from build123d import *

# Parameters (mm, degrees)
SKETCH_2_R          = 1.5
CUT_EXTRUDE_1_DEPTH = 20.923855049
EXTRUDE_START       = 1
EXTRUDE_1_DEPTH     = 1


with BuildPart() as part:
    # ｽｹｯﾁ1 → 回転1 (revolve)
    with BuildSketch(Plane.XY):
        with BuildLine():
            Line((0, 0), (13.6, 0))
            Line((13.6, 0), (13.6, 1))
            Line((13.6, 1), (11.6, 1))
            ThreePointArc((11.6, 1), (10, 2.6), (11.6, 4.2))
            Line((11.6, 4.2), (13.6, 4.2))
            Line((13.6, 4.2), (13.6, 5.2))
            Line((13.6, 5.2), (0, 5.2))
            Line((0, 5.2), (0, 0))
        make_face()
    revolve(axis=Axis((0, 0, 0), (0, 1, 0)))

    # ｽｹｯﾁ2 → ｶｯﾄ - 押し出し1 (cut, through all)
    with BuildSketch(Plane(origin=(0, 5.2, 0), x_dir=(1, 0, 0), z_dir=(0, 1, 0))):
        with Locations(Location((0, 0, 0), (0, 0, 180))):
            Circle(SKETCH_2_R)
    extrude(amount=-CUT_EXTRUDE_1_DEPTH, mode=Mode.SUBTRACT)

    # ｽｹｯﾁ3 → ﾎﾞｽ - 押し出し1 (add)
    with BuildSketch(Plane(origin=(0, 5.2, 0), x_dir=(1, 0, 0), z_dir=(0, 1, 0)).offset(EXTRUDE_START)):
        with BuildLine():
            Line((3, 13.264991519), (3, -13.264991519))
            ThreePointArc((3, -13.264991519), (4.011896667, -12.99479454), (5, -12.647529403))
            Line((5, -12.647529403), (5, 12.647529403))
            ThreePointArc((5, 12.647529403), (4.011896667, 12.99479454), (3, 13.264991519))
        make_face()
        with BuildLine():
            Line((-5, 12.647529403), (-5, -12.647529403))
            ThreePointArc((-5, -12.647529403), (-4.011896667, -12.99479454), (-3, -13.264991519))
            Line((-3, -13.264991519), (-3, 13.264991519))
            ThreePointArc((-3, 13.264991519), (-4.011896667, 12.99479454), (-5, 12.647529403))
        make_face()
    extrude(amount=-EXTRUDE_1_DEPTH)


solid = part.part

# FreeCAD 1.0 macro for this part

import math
import FreeCAD as App
import Part
import Sketcher
from FreeCAD import Vector

doc = App.newDocument("Part")
body = doc.addObject("PartDesign::Body", "Body")

# Sketch on XY plane
sketch1 = body.newObject("Sketcher::SketchObject", "Sketch")
sketch1.AttachmentSupport = (doc.getObject("XY_Plane"), [""])
sketch1.MapMode = "FlatFace"
sketch1.addGeometry(Part.LineSegment(Vector(0, 0, 0), Vector(13.6, 0, 0)), False)
sketch1.addGeometry(Part.LineSegment(Vector(13.6, 0, 0), Vector(13.6, 1, 0)), False)
sketch1.addGeometry(Part.LineSegment(Vector(13.6, 1, 0), Vector(11.6, 1, 0)), False)
sketch1.addGeometry(Part.ArcOfCircle(Part.Circle(Vector(11.6, 2.6, 0), Vector(0, 0, 1), 1.6), math.radians(90), math.radians(270)), False)
sketch1.addGeometry(Part.LineSegment(Vector(11.6, 4.2, 0), Vector(13.6, 4.2, 0)), False)
sketch1.addGeometry(Part.LineSegment(Vector(13.6, 4.2, 0), Vector(13.6, 5.2, 0)), False)
sketch1.addGeometry(Part.LineSegment(Vector(13.6, 5.2, 0), Vector(0, 5.2, 0)), False)
sketch1.addGeometry(Part.LineSegment(Vector(0, 5.2, 0), Vector(0, 0, 0)), False)
sketch1.addConstraint(Sketcher.Constraint("Coincident", 0, 2, 1, 1))
sketch1.addConstraint(Sketcher.Constraint("Coincident", 1, 2, 2, 1))
sketch1.addConstraint(Sketcher.Constraint("Tangent", 2, 2, 3, 2))
sketch1.addConstraint(Sketcher.Constraint("Tangent", 3, 1, 4, 1))
sketch1.addConstraint(Sketcher.Constraint("Coincident", 4, 2, 5, 1))
sketch1.addConstraint(Sketcher.Constraint("Coincident", 5, 2, 6, 1))
sketch1.addConstraint(Sketcher.Constraint("Coincident", 6, 2, 7, 1))
sketch1.addConstraint(Sketcher.Constraint("Coincident", 7, 2, 0, 1))
sketch1.addConstraint(Sketcher.Constraint("Horizontal", 0))
sketch1.addConstraint(Sketcher.Constraint("Vertical", 1))
sketch1.addConstraint(Sketcher.Constraint("Horizontal", 2))
sketch1.addConstraint(Sketcher.Constraint("Horizontal", 4))
sketch1.addConstraint(Sketcher.Constraint("Vertical", 5))
sketch1.addConstraint(Sketcher.Constraint("Horizontal", 6))
sketch1.addConstraint(Sketcher.Constraint("Vertical", 7))
sketch1.addConstraint(Sketcher.Constraint("Coincident", 7, 2, -1, 1))
sketch1.addConstraint(Sketcher.Constraint("Vertical", 1, 2, 4, 2))
sketch1.addConstraint(Sketcher.Constraint("Equal", 1, 5))
sketch1.addConstraint(Sketcher.Constraint("Radius", 3, 1.6))
sketch1.addConstraint(Sketcher.Constraint("DistanceX", 2, 2, 2, 1, 2.0))
sketch1.addConstraint(Sketcher.Constraint("DistanceY", 1, 1, 1, 2, 1.0))
sketch1.addConstraint(Sketcher.Constraint("DistanceX", 0, 1, 0, 2, 13.6))
revolution = body.newObject("PartDesign::Revolution", "Revolution")
revolution.Profile = sketch1
revolution.ReferenceAxis = (sketch1, ["V_Axis"])
revolution.Angle = 360

# Sketch on XZ plane
sketch2 = body.newObject("Sketcher::SketchObject", "Sketch001")
sketch2.AttachmentSupport = (doc.getObject("XZ_Plane"), [""])
sketch2.MapMode = "FlatFace"
sketch2.AttachmentOffset = App.Placement(Vector(0, 0, -5.2), App.Rotation())
sketch2.addGeometry(Part.Circle(Vector(0, 0, 0), Vector(0, 0, 1), 1.5), False)
sketch2.addConstraint(Sketcher.Constraint("Coincident", 0, 3, -1, 1))
sketch2.addConstraint(Sketcher.Constraint("Diameter", 0, 3.0))
pocket1 = body.newObject("PartDesign::Pocket", "Pocket")
pocket1.Profile = sketch2
pocket1.Type = "ThroughAll"
pocket1.Reversed = True

# Sketch on XZ plane
sketch3 = body.newObject("Sketcher::SketchObject", "Sketch002")
sketch3.AttachmentSupport = (doc.getObject("XZ_Plane"), [""])
sketch3.MapMode = "FlatFace"
sketch3.AttachmentOffset = App.Placement(Vector(0, 0, -6.2), App.Rotation())
sketch3.addGeometry(Part.LineSegment(Vector(3, -13.264992, 0), Vector(3, 13.264992, 0)), False)
sketch3.addGeometry(Part.ArcOfCircle(Part.Circle(Vector(0, 0, 0), Vector(0, 0, 1), 13.6), math.radians(68.429422), math.radians(77.256415)), False)
sketch3.addGeometry(Part.LineSegment(Vector(5, 12.647529, 0), Vector(5, -12.647529, 0)), False)
sketch3.addGeometry(Part.ArcOfCircle(Part.Circle(Vector(0, 0, 0), Vector(0, 0, 1), 13.6), math.radians(-77.256415), math.radians(-68.429422)), False)
sketch3.addGeometry(Part.LineSegment(Vector(-5, -12.647529, 0), Vector(-5, 12.647529, 0)), False)
sketch3.addGeometry(Part.ArcOfCircle(Part.Circle(Vector(0, 0, 0), Vector(0, 0, 1), 13.6), math.radians(102.743585), math.radians(111.570578)), False)
sketch3.addGeometry(Part.LineSegment(Vector(-3, 13.264992, 0), Vector(-3, -13.264992, 0)), False)
sketch3.addGeometry(Part.ArcOfCircle(Part.Circle(Vector(0, 0, 0), Vector(0, 0, 1), 13.6), math.radians(-111.570578), math.radians(-102.743585)), False)
sketch3.addConstraint(Sketcher.Constraint("Coincident", 0, 2, 1, 2))
sketch3.addConstraint(Sketcher.Constraint("Coincident", 1, 1, 2, 1))
sketch3.addConstraint(Sketcher.Constraint("Coincident", 2, 2, 3, 2))
sketch3.addConstraint(Sketcher.Constraint("Coincident", 3, 1, 0, 1))
sketch3.addConstraint(Sketcher.Constraint("Coincident", 4, 2, 5, 2))
sketch3.addConstraint(Sketcher.Constraint("Coincident", 5, 1, 6, 1))
sketch3.addConstraint(Sketcher.Constraint("Coincident", 6, 2, 7, 2))
sketch3.addConstraint(Sketcher.Constraint("Coincident", 7, 1, 4, 1))
sketch3.addConstraint(Sketcher.Constraint("Vertical", 0))
sketch3.addConstraint(Sketcher.Constraint("Vertical", 2))
sketch3.addConstraint(Sketcher.Constraint("Vertical", 4))
sketch3.addConstraint(Sketcher.Constraint("Vertical", 6))
sketch3.addConstraint(Sketcher.Constraint("Coincident", 1, 3, -1, 1))
sketch3.addConstraint(Sketcher.Constraint("Coincident", 3, 3, -1, 1))
sketch3.addConstraint(Sketcher.Constraint("Coincident", 5, 3, -1, 1))
sketch3.addConstraint(Sketcher.Constraint("Coincident", 7, 3, -1, 1))
sketch3.addConstraint(Sketcher.Constraint("Equal", 1, 3))
sketch3.addConstraint(Sketcher.Constraint("Equal", 3, 5))
sketch3.addConstraint(Sketcher.Constraint("Equal", 5, 7))
sketch3.addConstraint(Sketcher.Constraint("Horizontal", 1, 1, 4, 2))
sketch3.addConstraint(Sketcher.Constraint("Horizontal", 0, 2, 5, 1))
sketch3.addConstraint(Sketcher.Constraint("Radius", 1, 13.6))
sketch3.addConstraint(Sketcher.Constraint("DistanceX", -1, 1, 0, 2, 3.0))
sketch3.addConstraint(Sketcher.Constraint("DistanceX", -1, 1, 1, 1, 5.0))
pad1 = body.newObject("PartDesign::Pad", "Pad")
pad1.Profile = sketch3
pad1.Length = 1

doc.recompute()
